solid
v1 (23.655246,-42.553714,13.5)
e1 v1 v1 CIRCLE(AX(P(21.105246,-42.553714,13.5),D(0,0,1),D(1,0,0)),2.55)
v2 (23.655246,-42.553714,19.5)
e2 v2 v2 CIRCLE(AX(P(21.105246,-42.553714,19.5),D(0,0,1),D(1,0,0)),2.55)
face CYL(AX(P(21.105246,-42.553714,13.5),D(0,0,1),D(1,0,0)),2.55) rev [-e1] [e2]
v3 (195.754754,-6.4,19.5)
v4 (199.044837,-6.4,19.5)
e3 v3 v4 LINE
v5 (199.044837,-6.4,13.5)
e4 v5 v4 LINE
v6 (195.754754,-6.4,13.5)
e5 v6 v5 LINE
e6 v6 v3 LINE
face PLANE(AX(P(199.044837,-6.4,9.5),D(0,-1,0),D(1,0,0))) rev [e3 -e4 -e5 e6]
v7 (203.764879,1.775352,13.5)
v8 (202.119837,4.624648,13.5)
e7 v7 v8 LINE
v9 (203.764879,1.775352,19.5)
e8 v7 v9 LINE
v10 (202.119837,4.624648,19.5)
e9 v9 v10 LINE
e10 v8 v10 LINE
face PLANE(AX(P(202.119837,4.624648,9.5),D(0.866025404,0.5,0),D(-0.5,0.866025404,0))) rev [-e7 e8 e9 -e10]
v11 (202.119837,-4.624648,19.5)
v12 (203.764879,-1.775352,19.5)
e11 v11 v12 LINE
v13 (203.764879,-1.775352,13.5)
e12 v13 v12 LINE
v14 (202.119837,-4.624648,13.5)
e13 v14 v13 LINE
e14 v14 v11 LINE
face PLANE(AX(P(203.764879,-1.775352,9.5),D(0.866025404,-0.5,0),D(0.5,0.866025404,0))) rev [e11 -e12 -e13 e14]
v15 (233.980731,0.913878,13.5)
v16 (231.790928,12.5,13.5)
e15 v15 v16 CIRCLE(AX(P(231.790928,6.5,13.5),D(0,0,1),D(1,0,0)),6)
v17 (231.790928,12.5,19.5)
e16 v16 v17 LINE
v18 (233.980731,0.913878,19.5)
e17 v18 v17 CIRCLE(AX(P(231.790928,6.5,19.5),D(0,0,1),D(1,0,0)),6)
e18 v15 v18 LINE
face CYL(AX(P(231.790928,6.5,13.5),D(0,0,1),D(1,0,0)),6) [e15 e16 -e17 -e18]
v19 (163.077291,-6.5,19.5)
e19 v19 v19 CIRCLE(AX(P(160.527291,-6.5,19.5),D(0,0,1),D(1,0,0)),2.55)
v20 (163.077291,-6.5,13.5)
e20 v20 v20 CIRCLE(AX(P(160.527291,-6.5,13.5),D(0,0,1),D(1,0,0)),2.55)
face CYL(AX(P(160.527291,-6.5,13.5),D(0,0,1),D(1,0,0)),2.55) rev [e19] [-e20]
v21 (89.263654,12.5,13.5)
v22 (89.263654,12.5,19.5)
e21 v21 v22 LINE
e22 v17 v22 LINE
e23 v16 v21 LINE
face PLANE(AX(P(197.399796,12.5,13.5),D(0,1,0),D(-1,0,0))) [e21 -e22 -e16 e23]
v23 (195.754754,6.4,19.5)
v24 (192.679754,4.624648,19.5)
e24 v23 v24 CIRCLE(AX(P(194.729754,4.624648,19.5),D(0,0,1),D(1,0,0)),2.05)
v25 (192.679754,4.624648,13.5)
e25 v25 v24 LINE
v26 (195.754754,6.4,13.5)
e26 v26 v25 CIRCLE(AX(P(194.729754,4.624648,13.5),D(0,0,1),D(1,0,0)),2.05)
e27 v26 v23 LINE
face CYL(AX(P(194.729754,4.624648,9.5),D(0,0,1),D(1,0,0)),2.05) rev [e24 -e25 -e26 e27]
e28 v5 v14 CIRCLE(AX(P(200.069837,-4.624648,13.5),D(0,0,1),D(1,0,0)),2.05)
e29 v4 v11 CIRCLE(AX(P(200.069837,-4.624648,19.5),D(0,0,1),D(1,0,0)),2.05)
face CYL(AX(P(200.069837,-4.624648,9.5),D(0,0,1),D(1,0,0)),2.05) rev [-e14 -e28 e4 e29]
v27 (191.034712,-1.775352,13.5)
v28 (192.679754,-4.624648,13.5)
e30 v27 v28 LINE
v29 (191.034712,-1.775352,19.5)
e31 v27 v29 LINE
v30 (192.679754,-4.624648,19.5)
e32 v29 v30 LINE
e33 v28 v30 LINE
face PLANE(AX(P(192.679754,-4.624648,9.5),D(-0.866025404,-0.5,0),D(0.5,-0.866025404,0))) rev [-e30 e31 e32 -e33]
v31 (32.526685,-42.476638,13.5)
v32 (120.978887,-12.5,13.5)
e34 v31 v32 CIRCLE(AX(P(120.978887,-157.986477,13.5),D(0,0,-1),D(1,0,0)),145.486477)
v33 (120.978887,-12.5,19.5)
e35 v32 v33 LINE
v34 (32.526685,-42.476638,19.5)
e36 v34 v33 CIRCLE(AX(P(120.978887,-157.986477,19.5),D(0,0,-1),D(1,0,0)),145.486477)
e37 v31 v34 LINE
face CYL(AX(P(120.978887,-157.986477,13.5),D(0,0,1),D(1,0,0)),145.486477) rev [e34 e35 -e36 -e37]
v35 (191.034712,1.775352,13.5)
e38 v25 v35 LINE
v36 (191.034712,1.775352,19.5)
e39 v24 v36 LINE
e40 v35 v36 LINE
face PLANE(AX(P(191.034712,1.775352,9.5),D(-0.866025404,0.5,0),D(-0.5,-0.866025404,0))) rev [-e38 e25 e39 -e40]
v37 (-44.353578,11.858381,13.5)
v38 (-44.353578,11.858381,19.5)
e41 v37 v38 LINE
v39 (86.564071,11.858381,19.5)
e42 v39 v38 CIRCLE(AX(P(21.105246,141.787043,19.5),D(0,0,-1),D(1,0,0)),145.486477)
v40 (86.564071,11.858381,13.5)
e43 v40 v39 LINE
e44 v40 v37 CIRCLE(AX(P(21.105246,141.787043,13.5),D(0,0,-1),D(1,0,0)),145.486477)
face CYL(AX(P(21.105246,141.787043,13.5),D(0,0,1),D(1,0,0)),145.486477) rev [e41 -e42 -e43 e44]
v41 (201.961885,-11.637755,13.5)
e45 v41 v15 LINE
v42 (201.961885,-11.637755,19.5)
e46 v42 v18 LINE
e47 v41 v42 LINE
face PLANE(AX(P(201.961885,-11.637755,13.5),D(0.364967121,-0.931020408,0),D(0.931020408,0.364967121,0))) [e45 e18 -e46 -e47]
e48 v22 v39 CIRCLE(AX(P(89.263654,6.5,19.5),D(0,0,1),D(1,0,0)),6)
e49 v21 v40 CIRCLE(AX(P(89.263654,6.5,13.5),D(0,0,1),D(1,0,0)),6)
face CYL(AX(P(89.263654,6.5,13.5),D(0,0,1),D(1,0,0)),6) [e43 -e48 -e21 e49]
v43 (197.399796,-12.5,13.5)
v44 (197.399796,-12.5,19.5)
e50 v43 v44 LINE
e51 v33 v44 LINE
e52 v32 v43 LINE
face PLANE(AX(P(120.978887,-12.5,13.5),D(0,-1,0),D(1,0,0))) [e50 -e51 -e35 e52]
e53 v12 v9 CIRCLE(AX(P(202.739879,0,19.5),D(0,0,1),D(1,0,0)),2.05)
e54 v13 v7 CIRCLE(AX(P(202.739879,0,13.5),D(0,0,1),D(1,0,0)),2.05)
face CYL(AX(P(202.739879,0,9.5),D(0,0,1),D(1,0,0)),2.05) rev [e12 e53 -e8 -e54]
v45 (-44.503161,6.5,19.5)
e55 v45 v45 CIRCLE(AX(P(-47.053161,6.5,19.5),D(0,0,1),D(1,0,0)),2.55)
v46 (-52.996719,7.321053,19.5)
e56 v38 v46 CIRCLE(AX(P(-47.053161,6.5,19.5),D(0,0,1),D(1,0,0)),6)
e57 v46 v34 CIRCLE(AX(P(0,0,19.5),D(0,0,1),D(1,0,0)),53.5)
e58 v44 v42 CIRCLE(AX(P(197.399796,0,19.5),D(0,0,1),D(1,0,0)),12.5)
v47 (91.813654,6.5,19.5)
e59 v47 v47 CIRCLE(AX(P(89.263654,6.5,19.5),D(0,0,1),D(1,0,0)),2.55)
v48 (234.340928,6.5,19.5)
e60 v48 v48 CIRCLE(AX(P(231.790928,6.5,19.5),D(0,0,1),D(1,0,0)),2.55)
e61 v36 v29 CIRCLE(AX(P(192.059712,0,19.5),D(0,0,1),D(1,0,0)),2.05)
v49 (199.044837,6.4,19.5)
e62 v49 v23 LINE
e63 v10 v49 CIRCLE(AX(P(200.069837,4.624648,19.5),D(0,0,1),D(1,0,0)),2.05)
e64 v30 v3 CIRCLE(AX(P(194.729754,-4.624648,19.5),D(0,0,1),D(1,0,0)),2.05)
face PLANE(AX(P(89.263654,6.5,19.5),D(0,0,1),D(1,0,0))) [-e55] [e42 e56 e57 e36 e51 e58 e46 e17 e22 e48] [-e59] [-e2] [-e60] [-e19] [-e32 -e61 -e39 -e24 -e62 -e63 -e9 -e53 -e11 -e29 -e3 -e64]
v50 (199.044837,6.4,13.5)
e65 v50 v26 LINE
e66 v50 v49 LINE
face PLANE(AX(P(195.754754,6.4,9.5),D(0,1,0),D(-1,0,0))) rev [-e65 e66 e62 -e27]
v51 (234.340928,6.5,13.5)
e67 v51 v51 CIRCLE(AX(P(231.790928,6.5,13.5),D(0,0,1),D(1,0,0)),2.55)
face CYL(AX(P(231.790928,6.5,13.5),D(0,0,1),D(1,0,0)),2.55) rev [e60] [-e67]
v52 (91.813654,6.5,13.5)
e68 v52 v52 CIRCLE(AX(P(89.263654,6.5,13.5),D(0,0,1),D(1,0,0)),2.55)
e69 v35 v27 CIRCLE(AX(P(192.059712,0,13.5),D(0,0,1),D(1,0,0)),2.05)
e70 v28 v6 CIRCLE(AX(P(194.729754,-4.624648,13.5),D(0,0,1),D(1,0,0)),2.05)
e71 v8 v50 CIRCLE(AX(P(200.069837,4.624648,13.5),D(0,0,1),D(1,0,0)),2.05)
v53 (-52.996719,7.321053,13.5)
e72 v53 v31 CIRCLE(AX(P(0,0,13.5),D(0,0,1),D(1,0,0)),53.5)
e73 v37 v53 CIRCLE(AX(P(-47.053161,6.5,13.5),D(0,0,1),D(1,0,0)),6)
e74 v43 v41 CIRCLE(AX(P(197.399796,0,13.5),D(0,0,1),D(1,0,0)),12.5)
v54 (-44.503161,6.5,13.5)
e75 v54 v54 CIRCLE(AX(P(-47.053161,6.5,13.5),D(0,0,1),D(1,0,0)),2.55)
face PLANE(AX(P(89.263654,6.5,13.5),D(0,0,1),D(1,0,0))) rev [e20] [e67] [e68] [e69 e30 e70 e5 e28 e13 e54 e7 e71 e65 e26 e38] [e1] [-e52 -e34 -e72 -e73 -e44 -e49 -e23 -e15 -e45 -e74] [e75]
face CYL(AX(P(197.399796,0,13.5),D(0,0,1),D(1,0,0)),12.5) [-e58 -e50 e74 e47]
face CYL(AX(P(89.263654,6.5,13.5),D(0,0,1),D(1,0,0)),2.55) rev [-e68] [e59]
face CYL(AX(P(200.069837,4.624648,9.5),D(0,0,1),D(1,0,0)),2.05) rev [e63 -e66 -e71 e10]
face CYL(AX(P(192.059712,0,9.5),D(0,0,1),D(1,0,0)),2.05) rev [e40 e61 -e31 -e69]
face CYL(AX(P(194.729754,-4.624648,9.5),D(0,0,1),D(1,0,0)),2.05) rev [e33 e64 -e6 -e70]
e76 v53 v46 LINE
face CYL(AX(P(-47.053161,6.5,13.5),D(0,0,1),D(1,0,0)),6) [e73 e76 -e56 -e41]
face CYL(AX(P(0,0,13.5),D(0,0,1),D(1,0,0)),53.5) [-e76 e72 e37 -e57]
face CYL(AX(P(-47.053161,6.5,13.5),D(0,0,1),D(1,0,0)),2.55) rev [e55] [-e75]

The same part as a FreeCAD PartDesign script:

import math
import FreeCAD as App
import Part
import Sketcher
Q = App.Units.Quantity

doc = App.newDocument("Part")
body = doc.addObject("PartDesign::Body", "Body")

# Sketch on XY plane
sketch1 = body.newObject("Sketcher::SketchObject", "Sketch")
sketch1.AttachmentSupport = (doc.getObject("XY_Plane"), [""])
sketch1.MapMode = "FlatFace"
sketch1.AttachmentOffset = App.Placement(App.Vector(0, 0, 19.5), App.Rotation())
sketch1.addGeometry(Part.LineSegment(App.Vector(202, -11.6, 0), App.Vector(234, 0.9, 0)), False)
sketch1.addGeometry(Part.ArcOfCircle(Part.Circle(App.Vector(231.8, 6.5, 0), App.Vector(0, 0, 1), 6), math.radians(-69), math.radians(90)), False)
sketch1.addGeometry(Part.LineSegment(App.Vector(231.8, 12.5, 0), App.Vector(89.3, 12.5, 0)), False)
sketch1.addGeometry(Part.ArcOfCircle(Part.Circle(App.Vector(89.3, 6.5, 0), App.Vector(0, 0, 1), 6), math.radians(90), math.radians(117)), False)
sketch1.addGeometry(Part.ArcOfCircle(Part.Circle(App.Vector(21.1, 141.8, 0), App.Vector(0, 0, 1), 145.5), math.radians(-117), math.radians(-63)), False)
sketch1.addGeometry(Part.ArcOfCircle(Part.Circle(App.Vector(-47.1, 6.5, 0), App.Vector(0, 0, 1), 6), math.radians(63), math.radians(172)), False)
sketch1.addGeometry(Part.ArcOfCircle(Part.Circle(App.Vector(0, 0, 0), App.Vector(0, 0, 1), 53.5), math.radians(172), math.radians(307)), False)
sketch1.addGeometry(Part.ArcOfCircle(Part.Circle(App.Vector(121, -158, 0), App.Vector(0, 0, 1), 145.5), math.radians(90), math.radians(127)), False)
sketch1.addGeometry(Part.LineSegment(App.Vector(121, -12.5, 0), App.Vector(197.4, -12.5, 0)), False)
sketch1.addGeometry(Part.ArcOfCircle(Part.Circle(App.Vector(197.4, 0, 0), App.Vector(0, 0, 1), 12.5), math.radians(-90), math.radians(-69)), False)
sketch1.addGeometry(Part.Circle(App.Vector(21.1, -42.6, 0), App.Vector(0, 0, 1), 2.5), False)
sketch1.addGeometry(Part.Circle(App.Vector(-47.1, 6.5, 0), App.Vector(0, 0, 1), 2.5), False)
sketch1.addGeometry(Part.Circle(App.Vector(89.3, 6.5, 0), App.Vector(0, 0, 1), 2.5), False)
sketch1.addGeometry(Part.Circle(App.Vector(160.5, -6.5, 0), App.Vector(0, 0, 1), 2.5), False)
sketch1.addGeometry(Part.Circle(App.Vector(197.4, 0, 0), App.Vector(0, 0, 1), 6), False)
sketch1.addGeometry(Part.Circle(App.Vector(231.8, 6.5, 0), App.Vector(0, 0, 1), 2.5), False)
sketch1.addConstraint(Sketcher.Constraint("Tangent", 0, 2, 1, 1))
sketch1.addConstraint(Sketcher.Constraint("Tangent", 1, 2, 2, 1))
sketch1.addConstraint(Sketcher.Constraint("Tangent", 2, 2, 3, 1))
sketch1.addConstraint(Sketcher.Constraint("Tangent", 3, 2, 4, 2))
sketch1.addConstraint(Sketcher.Constraint("Tangent", 4, 1, 5, 1))
sketch1.addConstraint(Sketcher.Constraint("Tangent", 5, 2, 6, 1))
sketch1.addConstraint(Sketcher.Constraint("Tangent", 6, 2, 7, 2))
sketch1.addConstraint(Sketcher.Constraint("Tangent", 7, 1, 8, 1))
sketch1.addConstraint(Sketcher.Constraint("Tangent", 8, 2, 9, 1))
sketch1.addConstraint(Sketcher.Constraint("Tangent", 9, 2, 0, 1))
sketch1.addConstraint(Sketcher.Constraint("Horizontal", 2))
sketch1.addConstraint(Sketcher.Constraint("Horizontal", 8))
sketch1.addConstraint(Sketcher.Constraint("Coincident", 6, 3, -1, 1))
sketch1.addConstraint(Sketcher.Constraint("Coincident", 11, 3, 5, 3))
sketch1.addConstraint(Sketcher.Constraint("Coincident", 12, 3, 3, 3))
sketch1.addConstraint(Sketcher.Constraint("Coincident", 14, 3, 9, 3))
sketch1.addConstraint(Sketcher.Constraint("Coincident", 15, 3, 1, 3))
sketch1.addConstraint(Sketcher.Constraint("Equal", 1, 3))
sketch1.addConstraint(Sketcher.Constraint("Equal", 3, 5))
sketch1.addConstraint(Sketcher.Constraint("Equal", 4, 7))
sketch1.addConstraint(Sketcher.Constraint("Equal", 10, 11))
sketch1.addConstraint(Sketcher.Constraint("Equal", 11, 12))
sketch1.addConstraint(Sketcher.Constraint("Equal", 12, 13))
sketch1.addConstraint(Sketcher.Constraint("Equal", 5, 14))
sketch1.addConstraint(Sketcher.Constraint("Equal", 13, 15))
sketch1.addConstraint(Sketcher.Constraint("PointOnObject", 9, 3, -1))
sketch1.addConstraint(Sketcher.Constraint("Horizontal", 3, 3, 5, 3))
sketch1.addConstraint(Sketcher.Constraint("Vertical", 4, 3, 10, 3))
sketch1.addConstraint(Sketcher.Constraint("Diameter", 14, 12.0))
sketch1.addConstraint(Sketcher.Constraint("Diameter", 10, 5.1))
sketch1.addConstraint(Sketcher.Constraint("Radius", 6, 53.5))
sketch1.addConstraint(Sketcher.Constraint("Radius", 9, 12.5))
sketch1.addConstraint(Sketcher.Constraint("DistanceY", 13, 3, 1, 3, 13.0))
sketch1.addConstraint(Sketcher.Constraint("DistanceY", 7, 1, 12, 3, 19.0))
sketch1.addConstraint(Sketcher.Constraint("Radius", 4, 145.486477))
sketch1.addConstraint(Sketcher.Constraint("DistanceX", 8, 1, 8, 2, 76.420909))
sketch1.addConstraint(Sketcher.Constraint("DistanceX", 2, 2, 2, 1, 142.527274))
sketch1.addConstraint(Sketcher.Constraint("DistanceX", -1, 1, 1, 3, 231.790928))
sketch1.addConstraint(Sketcher.Constraint("DistanceX", -1, 1, 13, 3, 160.527291))
sketch1.addConstraint(Sketcher.Constraint("DistanceY", 10, 3, -1, 1, 42.553714))
pad1 = body.newObject("PartDesign::Pad", "Pad")
pad1.Profile = sketch1
pad1.Length = 6
pad1.Reversed = True

# Sketch on XY plane
sketch2 = body.newObject("Sketcher::SketchObject", "Sketch001")
sketch2.AttachmentSupport = (doc.getObject("XY_Plane"), [""])
sketch2.MapMode = "FlatFace"
sketch2.AttachmentOffset = App.Placement(App.Vector(0, 0, 19.5), App.Rotation())
sketch2.addGeometry(Part.LineSegment(App.Vector(192.7, 4.6, 0), App.Vector(191, 1.8, 0)), False)
sketch2.addGeometry(Part.ArcOfCircle(Part.Circle(App.Vector(192.1, 0, 0), App.Vector(0, 0, 1), 2), math.radians(120), math.radians(240)), False)
sketch2.addGeometry(Part.LineSegment(App.Vector(191, -1.8, 0), App.Vector(192.7, -4.6, 0)), False)
sketch2.addGeometry(Part.ArcOfCircle(Part.Circle(App.Vector(194.7, -4.6, 0), App.Vector(0, 0, 1), 2), math.radians(180), math.radians(300)), False)
sketch2.addGeometry(Part.LineSegment(App.Vector(195.8, -6.4, 0), App.Vector(199, -6.4, 0)), False)
sketch2.addGeometry(Part.ArcOfCircle(Part.Circle(App.Vector(200.1, -4.6, 0), App.Vector(0, 0, 1), 2), math.radians(-120), math.radians(0)), False)
sketch2.addGeometry(Part.LineSegment(App.Vector(202.1, -4.6, 0), App.Vector(203.8, -1.8, 0)), False)
sketch2.addGeometry(Part.ArcOfCircle(Part.Circle(App.Vector(202.7, 0, 0), App.Vector(0, 0, 1), 2), math.radians(-60), math.radians(60)), False)
sketch2.addGeometry(Part.LineSegment(App.Vector(203.8, 1.8, 0), App.Vector(202.1, 4.6, 0)), False)
sketch2.addGeometry(Part.ArcOfCircle(Part.Circle(App.Vector(200.1, 4.6, 0), App.Vector(0, 0, 1), 2), math.radians(0), math.radians(120)), False)
sketch2.addGeometry(Part.LineSegment(App.Vector(199, 6.4, 0), App.Vector(195.8, 6.4, 0)), False)
sketch2.addGeometry(Part.ArcOfCircle(Part.Circle(App.Vector(194.7, 4.6, 0), App.Vector(0, 0, 1), 2), math.radians(60), math.radians(180)), False)
sketch2.addConstraint(Sketcher.Constraint("Coincident", 0, 2, 1, 1))
sketch2.addConstraint(Sketcher.Constraint("Coincident", 1, 2, 2, 1))
sketch2.addConstraint(Sketcher.Constraint("Coincident", 2, 2, 3, 1))
sketch2.addConstraint(Sketcher.Constraint("Coincident", 3, 2, 4, 1))
sketch2.addConstraint(Sketcher.Constraint("Coincident", 4, 2, 5, 1))
sketch2.addConstraint(Sketcher.Constraint("Coincident", 5, 2, 6, 1))
sketch2.addConstraint(Sketcher.Constraint("Coincident", 6, 2, 7, 1))
sketch2.addConstraint(Sketcher.Constraint("Coincident", 7, 2, 8, 1))
sketch2.addConstraint(Sketcher.Constraint("Coincident", 8, 2, 9, 1))
sketch2.addConstraint(Sketcher.Constraint("Coincident", 9, 2, 10, 1))
sketch2.addConstraint(Sketcher.Constraint("Coincident", 10, 2, 11, 1))
sketch2.addConstraint(Sketcher.Constraint("Coincident", 11, 2, 0, 1))
sketch2.addConstraint(Sketcher.Constraint("Horizontal", 4))
sketch2.addConstraint(Sketcher.Constraint("Horizontal", 10))
sketch2.addConstraint(Sketcher.Constraint("Equal", 1, 3))
sketch2.addConstraint(Sketcher.Constraint("Equal", 3, 5))
sketch2.addConstraint(Sketcher.Constraint("Equal", 5, 7))
sketch2.addConstraint(Sketcher.Constraint("Equal", 7, 9))
sketch2.addConstraint(Sketcher.Constraint("Equal", 9, 11))
sketch2.addConstraint(Sketcher.Constraint("Symmetric", 5, 3, 9, 3, -1))
sketch2.addConstraint(Sketcher.Constraint("Symmetric", 3, 3, 11, 3, -1))
sketch2.addConstraint(Sketcher.Constraint("Symmetric", 0, 2, 1, 2, -1))
sketch2.addConstraint(Sketcher.Constraint("Symmetric", 6, 2, 7, 2, -1))
sketch2.addConstraint(Sketcher.Constraint("Parallel", 0, 6))
sketch2.addConstraint(Sketcher.Constraint("Parallel", 2, 8))
sketch2.addConstraint(Sketcher.Constraint("Horizontal", 3, 3, 5, 3))
sketch2.addConstraint(Sketcher.Constraint("Horizontal", 5, 3, 2, 2))
sketch2.addConstraint(Sketcher.Constraint("Horizontal", 2, 2, 5, 2))
sketch2.addConstraint(Sketcher.Constraint("Horizontal", 1, 2, 6, 2))
sketch2.addConstraint(Sketcher.Constraint("Horizontal", 11, 3, 8, 2))
sketch2.addConstraint(Sketcher.Constraint("Vertical", 4, 2, 9, 2))
sketch2.addConstraint(Sketcher.Constraint("Angle", 0, Q("-120 deg")))
sketch2.addConstraint(Sketcher.Constraint("Radius", 1, 2.05))
sketch2.addConstraint(Sketcher.Constraint("DistanceY", 3, 2, -1, 1, 6.4))
sketch2.addConstraint(Sketcher.Constraint("DistanceY", 3, 3, 0, 2, 6.4))
sketch2.addConstraint(Sketcher.Constraint("DistanceX", 0, 2, 1, 3, 1.025))
sketch2.addConstraint(Sketcher.Constraint("DistanceX", 4, 1, 4, 2, 3.290083))
sketch2.addConstraint(Sketcher.Constraint("DistanceX", -1, 1, 7, 3, 202.739879))
pocket1 = body.newObject("PartDesign::Pocket", "Pocket")
pocket1.Profile = sketch2
pocket1.Length = 10

doc.recompute()
